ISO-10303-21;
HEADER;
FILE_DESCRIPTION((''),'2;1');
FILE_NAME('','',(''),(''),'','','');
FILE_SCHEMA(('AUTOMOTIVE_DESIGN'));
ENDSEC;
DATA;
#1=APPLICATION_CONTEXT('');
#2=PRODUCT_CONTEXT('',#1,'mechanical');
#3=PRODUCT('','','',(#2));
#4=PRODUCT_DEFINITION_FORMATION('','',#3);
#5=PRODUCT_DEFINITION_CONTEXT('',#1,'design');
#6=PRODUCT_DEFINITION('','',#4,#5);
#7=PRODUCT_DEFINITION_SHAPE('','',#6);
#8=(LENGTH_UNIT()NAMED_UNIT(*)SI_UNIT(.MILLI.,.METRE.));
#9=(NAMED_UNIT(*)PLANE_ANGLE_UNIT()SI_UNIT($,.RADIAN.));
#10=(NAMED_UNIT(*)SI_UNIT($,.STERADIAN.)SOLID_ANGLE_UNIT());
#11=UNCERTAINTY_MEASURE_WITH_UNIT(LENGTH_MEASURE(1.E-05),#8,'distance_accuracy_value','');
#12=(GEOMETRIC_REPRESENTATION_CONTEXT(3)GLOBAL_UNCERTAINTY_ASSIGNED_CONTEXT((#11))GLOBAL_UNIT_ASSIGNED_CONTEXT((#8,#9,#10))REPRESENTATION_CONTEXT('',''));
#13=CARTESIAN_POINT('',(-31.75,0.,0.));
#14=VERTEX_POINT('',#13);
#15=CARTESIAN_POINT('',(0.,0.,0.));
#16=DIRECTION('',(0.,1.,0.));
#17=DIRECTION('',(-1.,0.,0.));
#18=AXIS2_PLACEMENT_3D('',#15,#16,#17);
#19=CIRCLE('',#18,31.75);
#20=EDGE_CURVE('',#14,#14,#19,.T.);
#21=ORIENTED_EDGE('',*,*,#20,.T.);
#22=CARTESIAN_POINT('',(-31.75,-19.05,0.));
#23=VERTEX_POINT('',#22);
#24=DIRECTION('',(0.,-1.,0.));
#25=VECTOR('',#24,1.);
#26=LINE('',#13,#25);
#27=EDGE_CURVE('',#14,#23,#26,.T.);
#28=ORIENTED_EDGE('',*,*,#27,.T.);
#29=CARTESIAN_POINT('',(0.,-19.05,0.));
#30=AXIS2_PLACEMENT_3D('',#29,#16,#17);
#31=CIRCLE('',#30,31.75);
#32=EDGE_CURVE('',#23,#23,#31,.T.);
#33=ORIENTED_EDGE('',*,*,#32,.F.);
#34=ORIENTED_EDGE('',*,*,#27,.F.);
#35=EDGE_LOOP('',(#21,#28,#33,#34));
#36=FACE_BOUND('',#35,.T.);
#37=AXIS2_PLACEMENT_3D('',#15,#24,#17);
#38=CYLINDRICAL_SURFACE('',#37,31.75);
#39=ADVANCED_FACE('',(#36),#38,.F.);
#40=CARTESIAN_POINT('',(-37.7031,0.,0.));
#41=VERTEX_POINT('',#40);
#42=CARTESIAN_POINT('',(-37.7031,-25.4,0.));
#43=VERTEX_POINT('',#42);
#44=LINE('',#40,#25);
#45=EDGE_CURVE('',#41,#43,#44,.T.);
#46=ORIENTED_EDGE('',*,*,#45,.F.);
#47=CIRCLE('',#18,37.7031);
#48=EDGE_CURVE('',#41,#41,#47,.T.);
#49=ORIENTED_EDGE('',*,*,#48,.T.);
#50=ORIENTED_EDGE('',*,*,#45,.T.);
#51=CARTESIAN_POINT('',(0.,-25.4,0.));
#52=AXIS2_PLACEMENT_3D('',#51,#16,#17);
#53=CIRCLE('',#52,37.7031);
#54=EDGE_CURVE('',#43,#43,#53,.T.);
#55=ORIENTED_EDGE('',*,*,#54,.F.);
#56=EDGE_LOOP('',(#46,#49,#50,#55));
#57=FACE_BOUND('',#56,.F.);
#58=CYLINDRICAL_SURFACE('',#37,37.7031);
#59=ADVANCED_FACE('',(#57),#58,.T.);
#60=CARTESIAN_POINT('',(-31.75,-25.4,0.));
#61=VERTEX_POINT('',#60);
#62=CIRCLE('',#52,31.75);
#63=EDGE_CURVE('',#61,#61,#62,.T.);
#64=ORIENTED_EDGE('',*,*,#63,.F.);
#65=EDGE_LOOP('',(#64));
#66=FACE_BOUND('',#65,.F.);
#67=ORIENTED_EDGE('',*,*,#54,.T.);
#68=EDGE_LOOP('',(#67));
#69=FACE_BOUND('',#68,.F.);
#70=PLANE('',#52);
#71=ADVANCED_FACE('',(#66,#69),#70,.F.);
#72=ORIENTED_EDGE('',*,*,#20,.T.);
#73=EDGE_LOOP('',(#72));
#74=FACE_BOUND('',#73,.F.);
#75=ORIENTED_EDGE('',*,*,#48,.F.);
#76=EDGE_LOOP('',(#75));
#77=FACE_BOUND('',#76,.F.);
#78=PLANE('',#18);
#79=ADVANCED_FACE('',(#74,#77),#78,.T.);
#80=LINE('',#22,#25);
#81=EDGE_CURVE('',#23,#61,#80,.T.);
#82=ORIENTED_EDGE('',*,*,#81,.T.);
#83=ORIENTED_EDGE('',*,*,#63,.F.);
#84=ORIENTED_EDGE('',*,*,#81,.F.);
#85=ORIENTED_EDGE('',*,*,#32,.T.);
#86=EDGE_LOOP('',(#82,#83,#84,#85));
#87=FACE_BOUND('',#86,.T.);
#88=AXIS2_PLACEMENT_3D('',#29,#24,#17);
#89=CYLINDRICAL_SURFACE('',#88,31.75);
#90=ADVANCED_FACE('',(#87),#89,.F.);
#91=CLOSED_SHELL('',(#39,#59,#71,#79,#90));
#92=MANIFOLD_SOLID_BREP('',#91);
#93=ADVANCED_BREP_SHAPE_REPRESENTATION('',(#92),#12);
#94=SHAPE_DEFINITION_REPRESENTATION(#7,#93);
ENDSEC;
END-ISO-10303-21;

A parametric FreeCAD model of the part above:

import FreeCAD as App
import Part
import Sketcher
from FreeCAD import Vector
Q = App.Units.Quantity


def add_polygon(sketch, points):
    """Adds a closed chain of lines whose ends are joined by coincident constraints."""
    first, n = sketch.GeometryCount, len(points)
    for a, b in zip(points, points[1:] + points[:1]):
        sketch.addGeometry(Part.LineSegment(App.Vector(*a, 0), App.Vector(*b, 0)), False)
    for i in range(n):
        sketch.addConstraint(Sketcher.Constraint("Coincident", first + i, 2, first + (i + 1) % n, 1))

doc = App.newDocument("Part")
body = doc.addObject("PartDesign::Body", "Body")

# Sketch on XY plane
sketch1 = doc.addObject("Sketcher::SketchObject", "Sketch")
body.addObject(sketch1)
sketch1.AttachmentSupport = (doc.XY_Plane, [""])
sketch1.MapMode = "FlatFace"
add_polygon(sketch1, [(-32, -25), (-32, 0), (-38, 0), (-38, -25)])  # lines 0-3
sketch1.addConstraint([
    Sketcher.Constraint("Vertical", 0),
    Sketcher.Constraint("Horizontal", 1),
    Sketcher.Constraint("Vertical", 2),
    Sketcher.Constraint("Horizontal", 3),
    Sketcher.Constraint("PointOnObject", 0, 2, -1),
    Sketcher.Constraint("DistanceY", 0, 1, 0, 2, Q("1 in")),
    Sketcher.Constraint("DistanceX", 1, 2, 1, 1, Q("0.2343701 in")),
    Sketcher.Constraint("DistanceX", 1, 2, -1, 1, Q("1.4843701 in")),
])
revolution = doc.addObject("PartDesign::Revolution", "Revolution")
body.addObject(revolution)
revolution.Profile = sketch1
revolution.ReferenceAxis = (sketch1, ["V_Axis"])
revolution.Angle = 360

doc.recompute()
